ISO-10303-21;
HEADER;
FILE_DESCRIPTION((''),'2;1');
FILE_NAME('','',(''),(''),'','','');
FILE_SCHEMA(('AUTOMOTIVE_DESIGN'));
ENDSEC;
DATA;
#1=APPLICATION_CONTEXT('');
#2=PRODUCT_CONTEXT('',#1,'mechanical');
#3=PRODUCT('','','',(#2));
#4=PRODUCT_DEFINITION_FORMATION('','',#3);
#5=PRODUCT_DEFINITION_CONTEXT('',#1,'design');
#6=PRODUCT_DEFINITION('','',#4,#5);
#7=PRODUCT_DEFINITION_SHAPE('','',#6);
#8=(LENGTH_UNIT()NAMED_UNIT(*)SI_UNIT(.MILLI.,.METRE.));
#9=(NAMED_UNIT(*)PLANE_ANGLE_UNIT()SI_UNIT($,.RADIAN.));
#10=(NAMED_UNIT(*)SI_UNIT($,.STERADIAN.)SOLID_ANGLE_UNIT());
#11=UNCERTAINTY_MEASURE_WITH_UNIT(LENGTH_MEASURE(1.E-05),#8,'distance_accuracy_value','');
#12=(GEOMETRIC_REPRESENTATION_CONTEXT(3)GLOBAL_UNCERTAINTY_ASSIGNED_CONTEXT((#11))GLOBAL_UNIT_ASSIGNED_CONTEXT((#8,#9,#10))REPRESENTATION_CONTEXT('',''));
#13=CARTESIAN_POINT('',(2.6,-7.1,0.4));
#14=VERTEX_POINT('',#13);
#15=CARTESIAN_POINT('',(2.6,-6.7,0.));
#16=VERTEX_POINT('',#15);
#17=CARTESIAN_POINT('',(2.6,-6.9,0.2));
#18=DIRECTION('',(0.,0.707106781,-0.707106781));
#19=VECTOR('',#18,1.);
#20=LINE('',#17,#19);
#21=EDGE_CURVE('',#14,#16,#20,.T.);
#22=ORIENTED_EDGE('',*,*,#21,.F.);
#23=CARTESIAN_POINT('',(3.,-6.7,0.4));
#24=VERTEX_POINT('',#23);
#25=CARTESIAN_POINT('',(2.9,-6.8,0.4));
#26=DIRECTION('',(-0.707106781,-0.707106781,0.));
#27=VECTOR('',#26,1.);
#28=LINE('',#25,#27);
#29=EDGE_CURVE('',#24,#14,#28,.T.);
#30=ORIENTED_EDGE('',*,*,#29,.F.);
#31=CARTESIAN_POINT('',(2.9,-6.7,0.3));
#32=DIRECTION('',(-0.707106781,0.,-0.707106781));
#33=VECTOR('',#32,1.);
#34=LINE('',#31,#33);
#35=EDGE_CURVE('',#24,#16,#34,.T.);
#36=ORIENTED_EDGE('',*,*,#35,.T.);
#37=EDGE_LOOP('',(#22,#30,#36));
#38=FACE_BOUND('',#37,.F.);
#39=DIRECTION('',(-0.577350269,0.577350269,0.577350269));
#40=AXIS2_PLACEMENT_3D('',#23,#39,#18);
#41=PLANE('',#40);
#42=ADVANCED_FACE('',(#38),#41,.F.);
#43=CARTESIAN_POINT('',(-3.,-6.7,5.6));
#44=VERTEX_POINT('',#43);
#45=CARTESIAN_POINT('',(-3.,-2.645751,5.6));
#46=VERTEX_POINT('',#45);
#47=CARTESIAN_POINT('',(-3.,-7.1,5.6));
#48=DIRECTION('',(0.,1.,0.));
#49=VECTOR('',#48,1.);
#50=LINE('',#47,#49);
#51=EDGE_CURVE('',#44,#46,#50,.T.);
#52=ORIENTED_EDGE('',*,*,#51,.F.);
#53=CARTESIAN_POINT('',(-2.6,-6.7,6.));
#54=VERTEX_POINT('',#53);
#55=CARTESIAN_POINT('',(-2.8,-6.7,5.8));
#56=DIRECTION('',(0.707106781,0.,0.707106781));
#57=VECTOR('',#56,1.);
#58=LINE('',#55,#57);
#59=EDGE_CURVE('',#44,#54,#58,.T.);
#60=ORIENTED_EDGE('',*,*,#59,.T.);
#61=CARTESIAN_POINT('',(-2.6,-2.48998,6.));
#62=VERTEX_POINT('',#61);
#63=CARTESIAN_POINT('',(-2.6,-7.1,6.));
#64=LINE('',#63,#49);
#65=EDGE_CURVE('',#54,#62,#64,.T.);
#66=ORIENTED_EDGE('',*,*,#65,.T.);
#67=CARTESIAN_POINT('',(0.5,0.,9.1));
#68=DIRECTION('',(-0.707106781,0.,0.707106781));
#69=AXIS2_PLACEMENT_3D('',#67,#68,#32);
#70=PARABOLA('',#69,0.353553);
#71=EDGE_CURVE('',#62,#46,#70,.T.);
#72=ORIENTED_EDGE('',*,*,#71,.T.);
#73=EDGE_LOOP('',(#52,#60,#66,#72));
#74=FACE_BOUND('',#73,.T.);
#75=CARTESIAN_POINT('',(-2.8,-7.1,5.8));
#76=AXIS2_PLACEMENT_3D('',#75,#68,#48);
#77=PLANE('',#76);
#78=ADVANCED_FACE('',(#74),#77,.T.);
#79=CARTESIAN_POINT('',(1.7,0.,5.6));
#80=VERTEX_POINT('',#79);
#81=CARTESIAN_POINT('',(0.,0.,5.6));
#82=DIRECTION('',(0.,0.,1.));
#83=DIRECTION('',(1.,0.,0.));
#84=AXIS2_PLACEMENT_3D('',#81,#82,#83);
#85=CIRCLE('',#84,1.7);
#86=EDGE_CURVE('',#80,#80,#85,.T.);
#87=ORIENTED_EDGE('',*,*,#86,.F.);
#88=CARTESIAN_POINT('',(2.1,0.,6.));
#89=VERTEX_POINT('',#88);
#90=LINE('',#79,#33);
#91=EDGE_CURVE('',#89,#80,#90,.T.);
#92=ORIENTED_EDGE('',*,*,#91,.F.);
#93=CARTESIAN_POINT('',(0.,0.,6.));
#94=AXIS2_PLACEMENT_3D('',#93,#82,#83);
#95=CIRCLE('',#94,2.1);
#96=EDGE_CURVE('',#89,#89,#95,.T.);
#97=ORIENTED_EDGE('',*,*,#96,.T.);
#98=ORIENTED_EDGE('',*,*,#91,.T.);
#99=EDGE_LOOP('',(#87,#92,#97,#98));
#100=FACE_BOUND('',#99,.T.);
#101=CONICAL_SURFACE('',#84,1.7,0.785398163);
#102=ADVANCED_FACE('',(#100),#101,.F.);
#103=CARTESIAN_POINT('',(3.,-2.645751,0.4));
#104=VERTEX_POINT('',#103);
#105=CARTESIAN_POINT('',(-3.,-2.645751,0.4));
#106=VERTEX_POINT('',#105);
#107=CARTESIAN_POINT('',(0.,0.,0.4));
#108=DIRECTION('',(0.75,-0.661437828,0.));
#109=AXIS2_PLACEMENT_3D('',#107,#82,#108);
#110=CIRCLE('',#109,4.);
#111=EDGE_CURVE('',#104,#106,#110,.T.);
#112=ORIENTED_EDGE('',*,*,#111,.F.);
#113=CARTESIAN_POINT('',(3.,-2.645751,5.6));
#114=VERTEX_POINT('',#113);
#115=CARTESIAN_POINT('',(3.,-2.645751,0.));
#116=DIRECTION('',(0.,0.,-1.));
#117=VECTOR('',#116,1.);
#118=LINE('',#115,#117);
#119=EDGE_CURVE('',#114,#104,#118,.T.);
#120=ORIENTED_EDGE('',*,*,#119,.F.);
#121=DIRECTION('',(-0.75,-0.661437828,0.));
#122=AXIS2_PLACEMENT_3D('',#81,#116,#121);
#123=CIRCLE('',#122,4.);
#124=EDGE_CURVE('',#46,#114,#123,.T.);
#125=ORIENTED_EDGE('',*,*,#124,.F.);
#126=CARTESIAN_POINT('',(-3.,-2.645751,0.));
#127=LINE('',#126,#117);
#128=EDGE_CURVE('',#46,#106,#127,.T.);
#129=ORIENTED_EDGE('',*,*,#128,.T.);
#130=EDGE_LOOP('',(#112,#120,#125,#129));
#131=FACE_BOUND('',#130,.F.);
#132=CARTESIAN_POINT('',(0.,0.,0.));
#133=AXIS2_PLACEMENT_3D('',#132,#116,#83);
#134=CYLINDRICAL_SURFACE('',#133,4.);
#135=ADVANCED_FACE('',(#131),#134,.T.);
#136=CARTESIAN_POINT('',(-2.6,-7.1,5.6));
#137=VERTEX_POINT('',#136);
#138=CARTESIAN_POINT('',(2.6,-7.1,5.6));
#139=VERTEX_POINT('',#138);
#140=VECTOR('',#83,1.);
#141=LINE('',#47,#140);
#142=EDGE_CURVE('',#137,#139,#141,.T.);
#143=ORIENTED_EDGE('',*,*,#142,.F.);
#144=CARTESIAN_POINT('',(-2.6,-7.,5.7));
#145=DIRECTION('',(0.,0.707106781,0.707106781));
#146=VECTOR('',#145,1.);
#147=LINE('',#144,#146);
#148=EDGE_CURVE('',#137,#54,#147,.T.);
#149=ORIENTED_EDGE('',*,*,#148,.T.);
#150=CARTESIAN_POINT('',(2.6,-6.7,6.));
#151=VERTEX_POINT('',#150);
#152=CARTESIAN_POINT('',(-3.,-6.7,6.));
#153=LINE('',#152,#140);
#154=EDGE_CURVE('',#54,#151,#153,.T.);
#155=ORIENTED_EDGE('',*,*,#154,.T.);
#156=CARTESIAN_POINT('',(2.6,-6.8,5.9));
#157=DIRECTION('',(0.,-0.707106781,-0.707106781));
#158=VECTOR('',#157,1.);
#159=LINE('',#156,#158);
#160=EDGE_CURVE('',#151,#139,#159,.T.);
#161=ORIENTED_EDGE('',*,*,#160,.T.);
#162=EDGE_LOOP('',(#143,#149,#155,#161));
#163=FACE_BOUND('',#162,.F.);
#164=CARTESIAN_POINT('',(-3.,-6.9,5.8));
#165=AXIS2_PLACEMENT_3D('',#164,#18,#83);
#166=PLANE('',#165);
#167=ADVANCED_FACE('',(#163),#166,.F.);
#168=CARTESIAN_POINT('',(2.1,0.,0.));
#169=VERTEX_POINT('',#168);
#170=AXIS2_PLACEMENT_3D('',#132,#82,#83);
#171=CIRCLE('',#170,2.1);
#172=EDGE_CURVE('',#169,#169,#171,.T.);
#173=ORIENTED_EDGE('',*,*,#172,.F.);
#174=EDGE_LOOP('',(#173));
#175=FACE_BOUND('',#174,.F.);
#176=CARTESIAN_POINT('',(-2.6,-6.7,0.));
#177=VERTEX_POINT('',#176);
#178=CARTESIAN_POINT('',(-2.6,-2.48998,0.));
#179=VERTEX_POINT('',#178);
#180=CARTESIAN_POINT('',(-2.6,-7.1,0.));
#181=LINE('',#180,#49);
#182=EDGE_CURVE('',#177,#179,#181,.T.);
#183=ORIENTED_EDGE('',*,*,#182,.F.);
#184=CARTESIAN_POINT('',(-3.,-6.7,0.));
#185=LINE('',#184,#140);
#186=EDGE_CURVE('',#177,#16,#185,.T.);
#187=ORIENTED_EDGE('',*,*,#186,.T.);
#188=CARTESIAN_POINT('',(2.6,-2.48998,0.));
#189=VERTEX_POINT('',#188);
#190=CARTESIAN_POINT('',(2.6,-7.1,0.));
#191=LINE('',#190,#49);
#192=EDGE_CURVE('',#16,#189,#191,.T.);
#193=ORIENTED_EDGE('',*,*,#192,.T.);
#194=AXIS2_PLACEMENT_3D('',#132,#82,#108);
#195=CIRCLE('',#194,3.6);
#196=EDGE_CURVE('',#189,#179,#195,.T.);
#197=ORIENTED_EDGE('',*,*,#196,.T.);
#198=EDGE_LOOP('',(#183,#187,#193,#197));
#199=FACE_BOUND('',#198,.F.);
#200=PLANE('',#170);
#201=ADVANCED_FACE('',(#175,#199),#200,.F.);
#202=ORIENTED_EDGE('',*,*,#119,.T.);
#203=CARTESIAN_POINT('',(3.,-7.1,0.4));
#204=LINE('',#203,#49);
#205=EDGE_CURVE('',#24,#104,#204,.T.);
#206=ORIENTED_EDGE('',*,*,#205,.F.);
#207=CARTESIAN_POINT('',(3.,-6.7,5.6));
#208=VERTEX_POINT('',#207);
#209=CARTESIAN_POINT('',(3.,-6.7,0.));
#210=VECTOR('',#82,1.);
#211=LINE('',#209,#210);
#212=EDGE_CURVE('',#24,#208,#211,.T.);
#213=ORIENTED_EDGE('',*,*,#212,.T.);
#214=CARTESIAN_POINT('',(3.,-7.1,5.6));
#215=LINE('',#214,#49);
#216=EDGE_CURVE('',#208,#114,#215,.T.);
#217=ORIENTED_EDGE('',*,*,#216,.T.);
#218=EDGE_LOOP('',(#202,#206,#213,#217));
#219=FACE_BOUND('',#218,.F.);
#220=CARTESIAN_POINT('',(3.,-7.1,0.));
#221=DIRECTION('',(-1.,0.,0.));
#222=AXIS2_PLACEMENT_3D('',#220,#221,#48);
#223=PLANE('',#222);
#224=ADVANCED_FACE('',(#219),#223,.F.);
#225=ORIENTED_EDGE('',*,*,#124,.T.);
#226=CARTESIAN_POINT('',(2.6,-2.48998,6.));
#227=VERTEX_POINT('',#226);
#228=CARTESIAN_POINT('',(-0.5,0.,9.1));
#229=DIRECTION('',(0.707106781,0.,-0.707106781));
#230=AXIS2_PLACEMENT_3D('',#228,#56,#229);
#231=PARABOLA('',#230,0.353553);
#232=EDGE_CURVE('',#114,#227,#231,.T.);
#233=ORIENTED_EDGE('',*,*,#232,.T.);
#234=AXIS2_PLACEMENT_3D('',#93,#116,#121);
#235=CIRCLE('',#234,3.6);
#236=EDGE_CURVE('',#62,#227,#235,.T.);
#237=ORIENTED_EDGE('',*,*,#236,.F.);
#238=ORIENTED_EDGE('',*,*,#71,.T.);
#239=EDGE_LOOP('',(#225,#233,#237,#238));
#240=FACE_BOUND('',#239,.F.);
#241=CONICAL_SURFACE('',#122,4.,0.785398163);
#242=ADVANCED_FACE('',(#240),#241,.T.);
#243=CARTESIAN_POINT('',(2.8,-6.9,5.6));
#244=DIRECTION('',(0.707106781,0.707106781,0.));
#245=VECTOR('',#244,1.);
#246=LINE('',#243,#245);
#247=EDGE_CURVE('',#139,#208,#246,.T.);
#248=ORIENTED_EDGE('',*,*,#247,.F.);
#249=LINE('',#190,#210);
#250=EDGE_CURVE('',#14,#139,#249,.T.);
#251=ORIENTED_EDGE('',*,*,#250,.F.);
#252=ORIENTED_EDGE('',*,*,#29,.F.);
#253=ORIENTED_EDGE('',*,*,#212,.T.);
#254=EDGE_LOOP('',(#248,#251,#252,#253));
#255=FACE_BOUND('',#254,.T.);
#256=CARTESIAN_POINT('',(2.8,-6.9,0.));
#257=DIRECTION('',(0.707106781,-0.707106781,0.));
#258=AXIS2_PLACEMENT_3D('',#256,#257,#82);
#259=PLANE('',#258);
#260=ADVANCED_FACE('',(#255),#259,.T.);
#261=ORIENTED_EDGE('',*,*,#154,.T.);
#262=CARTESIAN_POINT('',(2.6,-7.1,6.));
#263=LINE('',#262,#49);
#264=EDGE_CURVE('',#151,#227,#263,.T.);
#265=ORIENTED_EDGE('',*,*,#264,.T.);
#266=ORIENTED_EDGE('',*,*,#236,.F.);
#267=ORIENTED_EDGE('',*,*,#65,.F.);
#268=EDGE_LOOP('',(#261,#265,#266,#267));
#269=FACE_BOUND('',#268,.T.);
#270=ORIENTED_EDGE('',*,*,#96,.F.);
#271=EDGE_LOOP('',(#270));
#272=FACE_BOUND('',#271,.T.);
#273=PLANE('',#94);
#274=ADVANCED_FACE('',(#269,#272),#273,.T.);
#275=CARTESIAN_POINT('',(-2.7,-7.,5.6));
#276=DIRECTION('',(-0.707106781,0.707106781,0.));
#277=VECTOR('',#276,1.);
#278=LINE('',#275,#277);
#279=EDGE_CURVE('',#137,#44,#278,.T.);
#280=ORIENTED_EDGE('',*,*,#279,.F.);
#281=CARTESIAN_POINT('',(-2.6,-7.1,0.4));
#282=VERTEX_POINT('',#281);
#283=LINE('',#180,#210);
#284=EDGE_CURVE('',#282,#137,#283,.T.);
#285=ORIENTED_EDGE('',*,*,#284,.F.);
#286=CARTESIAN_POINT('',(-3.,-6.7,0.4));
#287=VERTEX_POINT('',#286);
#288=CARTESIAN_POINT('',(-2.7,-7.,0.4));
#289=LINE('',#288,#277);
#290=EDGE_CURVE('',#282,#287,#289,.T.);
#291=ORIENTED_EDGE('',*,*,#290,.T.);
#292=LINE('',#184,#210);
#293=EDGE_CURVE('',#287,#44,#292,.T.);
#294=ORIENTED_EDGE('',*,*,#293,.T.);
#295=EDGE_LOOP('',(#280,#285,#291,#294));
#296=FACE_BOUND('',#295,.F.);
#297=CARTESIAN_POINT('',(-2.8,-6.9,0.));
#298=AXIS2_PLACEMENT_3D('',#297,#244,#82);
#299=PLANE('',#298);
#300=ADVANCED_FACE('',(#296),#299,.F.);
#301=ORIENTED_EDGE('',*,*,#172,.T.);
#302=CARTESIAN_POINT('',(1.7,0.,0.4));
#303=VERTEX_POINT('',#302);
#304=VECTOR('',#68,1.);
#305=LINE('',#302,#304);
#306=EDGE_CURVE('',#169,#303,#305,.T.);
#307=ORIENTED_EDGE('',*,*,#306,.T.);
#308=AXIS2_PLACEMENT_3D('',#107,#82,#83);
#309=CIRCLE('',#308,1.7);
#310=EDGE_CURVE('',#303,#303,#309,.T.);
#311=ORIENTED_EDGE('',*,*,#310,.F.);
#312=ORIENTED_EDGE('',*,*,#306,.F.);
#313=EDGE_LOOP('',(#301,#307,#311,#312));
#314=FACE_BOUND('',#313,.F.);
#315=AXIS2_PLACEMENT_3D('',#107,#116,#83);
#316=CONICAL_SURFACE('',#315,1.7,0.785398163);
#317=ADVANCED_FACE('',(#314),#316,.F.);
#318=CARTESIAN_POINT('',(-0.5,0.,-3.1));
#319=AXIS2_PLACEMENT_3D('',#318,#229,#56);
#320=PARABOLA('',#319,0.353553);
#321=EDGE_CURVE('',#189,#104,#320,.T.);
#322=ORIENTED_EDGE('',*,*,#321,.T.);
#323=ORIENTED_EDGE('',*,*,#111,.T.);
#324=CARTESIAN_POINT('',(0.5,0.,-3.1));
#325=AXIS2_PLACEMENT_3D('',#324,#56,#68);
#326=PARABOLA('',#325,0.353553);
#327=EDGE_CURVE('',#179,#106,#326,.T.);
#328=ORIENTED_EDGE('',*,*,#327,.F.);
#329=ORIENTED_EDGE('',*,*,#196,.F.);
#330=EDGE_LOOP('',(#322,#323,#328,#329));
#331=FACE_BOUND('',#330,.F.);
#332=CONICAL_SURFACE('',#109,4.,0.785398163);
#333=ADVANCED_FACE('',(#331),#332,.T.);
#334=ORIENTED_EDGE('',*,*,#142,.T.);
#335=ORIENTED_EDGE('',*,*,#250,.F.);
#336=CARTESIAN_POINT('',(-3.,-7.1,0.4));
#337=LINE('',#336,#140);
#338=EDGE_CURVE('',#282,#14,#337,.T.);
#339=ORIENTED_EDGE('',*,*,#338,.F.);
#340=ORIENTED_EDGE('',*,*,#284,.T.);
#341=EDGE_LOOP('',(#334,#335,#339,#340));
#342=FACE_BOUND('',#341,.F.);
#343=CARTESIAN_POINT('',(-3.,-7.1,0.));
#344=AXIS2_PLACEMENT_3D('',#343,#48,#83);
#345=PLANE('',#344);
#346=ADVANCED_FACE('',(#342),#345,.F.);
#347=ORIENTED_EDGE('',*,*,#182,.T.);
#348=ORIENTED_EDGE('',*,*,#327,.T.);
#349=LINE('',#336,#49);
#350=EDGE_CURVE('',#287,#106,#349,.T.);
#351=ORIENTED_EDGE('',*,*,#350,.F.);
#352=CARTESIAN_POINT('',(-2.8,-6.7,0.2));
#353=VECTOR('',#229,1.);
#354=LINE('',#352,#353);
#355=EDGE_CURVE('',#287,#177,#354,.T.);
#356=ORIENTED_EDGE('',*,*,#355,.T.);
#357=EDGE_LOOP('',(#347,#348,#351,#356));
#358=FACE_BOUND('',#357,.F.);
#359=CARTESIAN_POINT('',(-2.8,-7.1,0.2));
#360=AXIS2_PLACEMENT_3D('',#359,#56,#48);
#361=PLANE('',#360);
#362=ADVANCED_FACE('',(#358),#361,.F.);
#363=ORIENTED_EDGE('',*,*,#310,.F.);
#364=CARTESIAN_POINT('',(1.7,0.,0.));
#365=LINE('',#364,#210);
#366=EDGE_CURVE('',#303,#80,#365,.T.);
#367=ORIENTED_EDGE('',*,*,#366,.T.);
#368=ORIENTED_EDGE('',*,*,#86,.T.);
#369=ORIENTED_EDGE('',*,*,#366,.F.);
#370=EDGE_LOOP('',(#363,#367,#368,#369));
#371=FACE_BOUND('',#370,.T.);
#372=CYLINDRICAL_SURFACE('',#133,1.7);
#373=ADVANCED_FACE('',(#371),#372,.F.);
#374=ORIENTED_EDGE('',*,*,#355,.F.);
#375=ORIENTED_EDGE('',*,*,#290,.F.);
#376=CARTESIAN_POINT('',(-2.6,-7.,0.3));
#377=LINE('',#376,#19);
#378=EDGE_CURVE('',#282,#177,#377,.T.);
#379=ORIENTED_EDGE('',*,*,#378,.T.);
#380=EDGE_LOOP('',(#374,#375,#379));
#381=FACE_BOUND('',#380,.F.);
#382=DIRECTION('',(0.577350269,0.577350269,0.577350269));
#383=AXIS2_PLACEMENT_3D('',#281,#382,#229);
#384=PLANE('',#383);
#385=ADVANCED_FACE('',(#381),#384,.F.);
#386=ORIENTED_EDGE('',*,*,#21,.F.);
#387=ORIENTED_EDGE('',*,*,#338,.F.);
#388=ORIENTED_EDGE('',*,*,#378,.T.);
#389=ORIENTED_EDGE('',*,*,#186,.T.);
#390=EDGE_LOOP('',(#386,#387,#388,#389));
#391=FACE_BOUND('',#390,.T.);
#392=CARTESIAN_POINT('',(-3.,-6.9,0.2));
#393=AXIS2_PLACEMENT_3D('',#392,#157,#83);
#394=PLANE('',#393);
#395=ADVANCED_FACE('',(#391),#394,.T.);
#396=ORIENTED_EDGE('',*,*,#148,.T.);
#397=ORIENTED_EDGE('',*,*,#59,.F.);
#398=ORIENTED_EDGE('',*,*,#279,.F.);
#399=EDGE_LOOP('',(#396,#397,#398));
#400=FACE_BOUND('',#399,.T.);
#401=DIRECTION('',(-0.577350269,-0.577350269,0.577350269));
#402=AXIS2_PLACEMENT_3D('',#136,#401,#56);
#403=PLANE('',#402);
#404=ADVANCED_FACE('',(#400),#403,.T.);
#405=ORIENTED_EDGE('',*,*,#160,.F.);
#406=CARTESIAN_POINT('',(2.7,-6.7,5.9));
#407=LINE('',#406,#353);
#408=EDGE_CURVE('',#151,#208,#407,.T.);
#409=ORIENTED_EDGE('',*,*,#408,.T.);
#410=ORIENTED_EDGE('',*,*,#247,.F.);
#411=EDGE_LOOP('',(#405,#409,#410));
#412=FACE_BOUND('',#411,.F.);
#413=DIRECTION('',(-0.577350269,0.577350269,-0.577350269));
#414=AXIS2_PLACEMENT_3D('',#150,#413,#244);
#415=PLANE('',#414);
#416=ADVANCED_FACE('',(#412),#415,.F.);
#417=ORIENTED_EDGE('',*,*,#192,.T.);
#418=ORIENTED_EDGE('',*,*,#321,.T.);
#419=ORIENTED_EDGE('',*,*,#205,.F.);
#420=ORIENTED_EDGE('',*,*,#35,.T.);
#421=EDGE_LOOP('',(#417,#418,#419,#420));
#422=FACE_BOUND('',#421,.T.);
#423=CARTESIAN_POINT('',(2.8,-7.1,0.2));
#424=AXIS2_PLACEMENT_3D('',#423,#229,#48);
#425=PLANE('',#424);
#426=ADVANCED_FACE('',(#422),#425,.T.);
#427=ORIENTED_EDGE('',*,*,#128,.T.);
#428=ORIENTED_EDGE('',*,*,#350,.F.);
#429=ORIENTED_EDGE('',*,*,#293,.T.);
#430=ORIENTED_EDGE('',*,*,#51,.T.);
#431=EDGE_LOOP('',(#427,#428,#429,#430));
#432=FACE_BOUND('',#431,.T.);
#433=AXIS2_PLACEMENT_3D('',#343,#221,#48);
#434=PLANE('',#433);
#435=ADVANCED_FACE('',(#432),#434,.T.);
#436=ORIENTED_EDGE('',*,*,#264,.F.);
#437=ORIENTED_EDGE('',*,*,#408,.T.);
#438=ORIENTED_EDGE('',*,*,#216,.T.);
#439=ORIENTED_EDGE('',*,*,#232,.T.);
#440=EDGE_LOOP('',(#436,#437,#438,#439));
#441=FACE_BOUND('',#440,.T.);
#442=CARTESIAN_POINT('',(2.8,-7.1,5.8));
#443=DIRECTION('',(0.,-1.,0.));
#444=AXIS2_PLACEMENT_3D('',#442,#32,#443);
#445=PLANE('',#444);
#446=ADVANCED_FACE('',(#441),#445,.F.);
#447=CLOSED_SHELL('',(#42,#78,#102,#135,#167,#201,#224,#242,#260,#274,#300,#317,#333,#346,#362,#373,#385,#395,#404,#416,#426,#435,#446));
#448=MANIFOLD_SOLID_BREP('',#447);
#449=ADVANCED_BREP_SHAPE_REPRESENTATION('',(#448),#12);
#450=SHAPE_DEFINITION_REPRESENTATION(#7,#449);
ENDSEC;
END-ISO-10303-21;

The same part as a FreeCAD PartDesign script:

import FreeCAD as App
import Part
import Sketcher
from FreeCAD import Vector


def edges_at(feature, points):
    """Names of the edges that pass closest to the given points."""
    edges = feature.Shape.Edges
    near = lambda p: min(range(len(edges)), key=lambda i: edges[i].distToShape(Part.Vertex(*p))[0])
    return sorted({f"Edge{near(p) + 1}" for p in points})


def add_polygon(sketch, points):
    """Adds a closed chain of lines whose ends are joined by coincident constraints."""
    first, n = sketch.GeometryCount, len(points)
    for a, b in zip(points, points[1:] + points[:1]):
        sketch.addGeometry(Part.LineSegment(App.Vector(*a, 0), App.Vector(*b, 0)), False)
    for i in range(n):
        sketch.addConstraint(Sketcher.Constraint("Coincident", first + i, 2, first + (i + 1) % n, 1))

doc = App.newDocument("Part")
params = doc.addObject("Spreadsheet::Sheet", "Params")
for row, (alias, value) in enumerate([
    ("sketch1_diameter", "3.4 mm"),
    ("pad1_length", "6 mm"),
    ("sketch2_diameter", "8 mm"),
    ("pad2_length", "6 mm"),
    ("sketch3_width", "6 mm"),
    ("sketch3_height", "8 mm"),
    ("pad3_length", "6 mm"),
    ("chamfer_size", "0.4 mm"),
], start=1):
    params.set(f"A{row}", alias)
    params.set(f"B{row}", "=" + value)
    params.setAlias(f"B{row}", alias)

body = doc.addObject("PartDesign::Body", "Body")

# Sketch on XY plane
sketch1 = body.newObject("Sketcher::SketchObject", "Sketch")
sketch1.AttachmentSupport = (doc.getObject("XY_Plane"), [""])
sketch1.MapMode = "FlatFace"
sketch1.addGeometry(Part.Circle(Vector(0, 0, 0), Vector(0, 0, 1), 1.7), False)
sketch1.addConstraint([
    Sketcher.Constraint("Coincident", 0, 3, -1, 1),
    Sketcher.Constraint("Diameter", 0, 3.4),
])
sketch1.setExpression("Constraints[1]", "Params.sketch1_diameter")
pad1 = body.newObject("PartDesign::Pad", "Pad")
pad1.Profile = sketch1
pad1.setExpression("Length", "Params.pad1_length")
body2 = doc.addObject("PartDesign::Body", "Body001")

# Sketch on XY plane
sketch2 = body2.newObject("Sketcher::SketchObject", "Sketch001")
sketch2.AttachmentSupport = (doc.getObject("XY_Plane001"), [""])
sketch2.MapMode = "FlatFace"
sketch2.addGeometry(Part.Circle(Vector(0, 0, 0), Vector(0, 0, 1), 4), False)
sketch2.addConstraint([
    Sketcher.Constraint("Coincident", 0, 3, -1, 1),
    Sketcher.Constraint("Diameter", 0, 8.0),
])
sketch2.setExpression("Constraints[1]", "Params.sketch2_diameter")
pad2 = body2.newObject("PartDesign::Pad", "Pad001")
pad2.Profile = sketch2
pad2.setExpression("Length", "Params.pad2_length")
body3 = doc.addObject("PartDesign::Body", "Body002")

# Sketch on XY plane
sketch3 = body3.newObject("Sketcher::SketchObject", "Sketch002")
sketch3.AttachmentSupport = (doc.getObject("XY_Plane002"), [""])
sketch3.MapMode = "FlatFace"
add_polygon(sketch3, [(-3, 1), (-3, -7), (3, -7), (3, 1)])  # lines 0-3
sketch3.addConstraint([
    Sketcher.Constraint("Vertical", 0),
    Sketcher.Constraint("Horizontal", 1),
    Sketcher.Constraint("Vertical", 2),
    Sketcher.Constraint("Horizontal", 3),
    Sketcher.Constraint("DistanceX", 1, 1, 1, 2, 6.0),
    Sketcher.Constraint("DistanceY", 0, 2, 0, 1, 8.0),
    Sketcher.Constraint("DistanceX", 0, 2, -1, 1, 3.0),
    Sketcher.Constraint("DistanceY", 0, 2, -1, 1, 7.1),
])
sketch3.setExpression("Constraints[8]", "Params.sketch3_width")
sketch3.setExpression("Constraints[9]", "Params.sketch3_height")
pad3 = body3.newObject("PartDesign::Pad", "Pad002")
pad3.Profile = sketch3
pad3.setExpression("Length", "Params.pad3_length")
doc.recompute()

boolean = body3.newObject("PartDesign::Boolean", "Boolean")
boolean.Type = "Fuse"
boolean.addObjects([body2])
doc.recompute()

boolean2 = body3.newObject("PartDesign::Boolean", "Boolean001")
boolean2.Type = "Cut"
boolean2.addObjects([body])
doc.recompute()

chamfer = body3.newObject("PartDesign::Chamfer", "Chamfer")
chamfer.Base = (boolean2, edges_at(boolean2, [
    (-3, -4.873, 6),
    (-3, -4.873, 0),
    (-3, -7.1, 3),
    (0, -7.1, 0),
    (3, -7.1, 3),
    (0, -7.1, 6),
    (3, -4.873, 6),
    (3, -4.873, 0),
    (0, 4, 6),
    (0, 4, 6),
    (-1.7, 0, 6),
    (-1.7, 0, 6),
    (-1.7, 0, 6),
    (-1.7, 0, 0),
    (-1.7, 0, 0),
    (-1.7, 0, 0),
    (0, 4, 0),
    (0, 4, 0),
]))
chamfer.setExpression("Size", "Params.chamfer_size")

doc.recompute()
